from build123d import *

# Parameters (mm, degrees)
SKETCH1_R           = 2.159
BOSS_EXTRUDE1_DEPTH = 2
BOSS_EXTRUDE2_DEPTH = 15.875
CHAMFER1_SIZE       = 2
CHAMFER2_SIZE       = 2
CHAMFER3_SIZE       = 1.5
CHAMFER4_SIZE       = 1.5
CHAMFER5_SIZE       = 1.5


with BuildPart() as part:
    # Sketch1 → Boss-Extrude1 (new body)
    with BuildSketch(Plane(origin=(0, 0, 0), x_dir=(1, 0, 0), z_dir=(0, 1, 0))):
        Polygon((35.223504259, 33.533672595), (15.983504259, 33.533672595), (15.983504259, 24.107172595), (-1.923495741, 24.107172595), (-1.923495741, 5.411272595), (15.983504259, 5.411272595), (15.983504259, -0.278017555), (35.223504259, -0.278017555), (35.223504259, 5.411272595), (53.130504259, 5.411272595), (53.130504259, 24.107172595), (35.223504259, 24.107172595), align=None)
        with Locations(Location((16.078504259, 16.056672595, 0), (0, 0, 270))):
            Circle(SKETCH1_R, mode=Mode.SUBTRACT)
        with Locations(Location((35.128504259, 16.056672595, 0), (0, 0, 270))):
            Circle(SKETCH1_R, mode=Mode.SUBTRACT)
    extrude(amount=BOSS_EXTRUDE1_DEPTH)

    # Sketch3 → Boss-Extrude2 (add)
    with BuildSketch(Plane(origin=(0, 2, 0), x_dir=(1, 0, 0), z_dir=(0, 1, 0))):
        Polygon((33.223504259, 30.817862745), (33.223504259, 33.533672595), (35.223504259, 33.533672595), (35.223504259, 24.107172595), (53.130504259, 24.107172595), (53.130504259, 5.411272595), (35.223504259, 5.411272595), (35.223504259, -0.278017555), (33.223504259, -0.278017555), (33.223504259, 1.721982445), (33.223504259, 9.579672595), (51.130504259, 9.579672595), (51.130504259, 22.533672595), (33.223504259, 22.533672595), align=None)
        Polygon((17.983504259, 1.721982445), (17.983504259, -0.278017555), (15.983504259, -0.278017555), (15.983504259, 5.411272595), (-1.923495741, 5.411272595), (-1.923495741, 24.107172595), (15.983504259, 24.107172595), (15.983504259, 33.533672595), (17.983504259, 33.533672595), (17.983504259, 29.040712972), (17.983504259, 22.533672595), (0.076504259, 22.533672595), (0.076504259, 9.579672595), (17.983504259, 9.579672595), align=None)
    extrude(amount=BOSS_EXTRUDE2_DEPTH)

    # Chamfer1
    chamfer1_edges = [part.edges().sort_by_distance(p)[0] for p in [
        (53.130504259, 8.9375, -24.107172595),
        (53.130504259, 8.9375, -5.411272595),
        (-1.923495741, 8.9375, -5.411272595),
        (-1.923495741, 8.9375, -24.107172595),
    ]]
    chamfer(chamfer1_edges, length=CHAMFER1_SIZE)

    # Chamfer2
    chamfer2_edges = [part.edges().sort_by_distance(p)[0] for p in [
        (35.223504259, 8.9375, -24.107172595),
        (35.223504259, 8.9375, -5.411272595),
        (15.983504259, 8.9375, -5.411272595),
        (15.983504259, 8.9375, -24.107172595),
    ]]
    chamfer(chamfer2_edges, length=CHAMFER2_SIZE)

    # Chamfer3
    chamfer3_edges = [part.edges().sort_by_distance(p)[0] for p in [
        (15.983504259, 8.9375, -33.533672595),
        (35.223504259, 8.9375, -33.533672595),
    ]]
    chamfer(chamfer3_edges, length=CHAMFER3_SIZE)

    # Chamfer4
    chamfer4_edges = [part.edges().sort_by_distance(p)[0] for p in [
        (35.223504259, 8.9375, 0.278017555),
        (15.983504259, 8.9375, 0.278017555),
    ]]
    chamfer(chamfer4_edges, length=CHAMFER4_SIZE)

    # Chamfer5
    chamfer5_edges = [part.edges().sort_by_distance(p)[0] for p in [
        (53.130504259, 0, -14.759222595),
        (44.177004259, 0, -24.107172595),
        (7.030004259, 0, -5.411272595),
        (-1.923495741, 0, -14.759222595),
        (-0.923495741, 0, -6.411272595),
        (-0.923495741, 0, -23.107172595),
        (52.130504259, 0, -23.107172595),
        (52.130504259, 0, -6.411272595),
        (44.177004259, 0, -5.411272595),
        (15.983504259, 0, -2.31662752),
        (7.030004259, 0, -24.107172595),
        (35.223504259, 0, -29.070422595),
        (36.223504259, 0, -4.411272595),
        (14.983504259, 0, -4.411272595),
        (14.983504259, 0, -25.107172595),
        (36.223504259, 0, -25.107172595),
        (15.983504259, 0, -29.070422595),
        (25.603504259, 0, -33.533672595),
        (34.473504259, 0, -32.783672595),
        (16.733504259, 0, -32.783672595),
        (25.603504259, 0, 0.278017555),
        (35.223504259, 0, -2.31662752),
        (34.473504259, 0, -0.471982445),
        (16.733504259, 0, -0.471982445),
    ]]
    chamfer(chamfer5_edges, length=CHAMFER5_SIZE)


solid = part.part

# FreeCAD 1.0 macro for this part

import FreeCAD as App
import Part
import Sketcher
from FreeCAD import Vector
Q = App.Units.Quantity


def edges_at(feature, points):
    """Names of the edges that pass closest to the given points."""
    edges = feature.Shape.Edges
    near = lambda p: min(range(len(edges)), key=lambda i: edges[i].distToShape(Part.Vertex(*p))[0])
    return sorted({f"Edge{near(p) + 1}" for p in points})

doc = App.newDocument("Part")
body = doc.addObject("PartDesign::Body", "Body")

# Sketch on XZ plane
sketch1 = body.newObject("Sketcher::SketchObject", "Sketch")
sketch1.AttachmentSupport = (doc.getObject("XZ_Plane"), [""])
sketch1.MapMode = "FlatFace"
sketch1.addGeometry([
    Part.LineSegment(Vector(35.223504, -33.533673, 0), Vector(15.983504, -33.533673, 0)),  # 0
    Part.LineSegment(Vector(15.983504, -33.533673, 0), Vector(15.983504, -24.107173, 0)),  # 1
    Part.LineSegment(Vector(15.983504, -24.107173, 0), Vector(-1.923496, -24.107173, 0)),  # 2
    Part.LineSegment(Vector(-1.923496, -24.107173, 0), Vector(-1.923496, -5.411273, 0)),  # 3
    Part.LineSegment(Vector(-1.923496, -5.411273, 0), Vector(15.983504, -5.411273, 0)),  # 4
    Part.LineSegment(Vector(15.983504, -5.411273, 0), Vector(15.983504, 0.278018, 0)),  # 5
    Part.LineSegment(Vector(15.983504, 0.278018, 0), Vector(35.223504, 0.278018, 0)),  # 6
    Part.LineSegment(Vector(35.223504, 0.278018, 0), Vector(35.223504, -5.411273, 0)),  # 7
    Part.LineSegment(Vector(35.223504, -5.411273, 0), Vector(53.130504, -5.411273, 0)),  # 8
    Part.LineSegment(Vector(53.130504, -5.411273, 0), Vector(53.130504, -24.107173, 0)),  # 9
    Part.LineSegment(Vector(53.130504, -24.107173, 0), Vector(35.223504, -24.107173, 0)),  # 10
    Part.LineSegment(Vector(35.223504, -24.107173, 0), Vector(35.223504, -33.533673, 0)),  # 11
    Part.Circle(Vector(16.078504, -16.056673, 0), Vector(0, 0, 1), 2.159),  # 12
    Part.Circle(Vector(35.128504, -16.056673, 0), Vector(0, 0, 1), 2.159),  # 13
], False)
sketch1.addConstraint([
    Sketcher.Constraint("Coincident", 0, 2, 1, 1),
    Sketcher.Constraint("Coincident", 1, 2, 2, 1),
    Sketcher.Constraint("Coincident", 2, 2, 3, 1),
    Sketcher.Constraint("Coincident", 3, 2, 4, 1),
    Sketcher.Constraint("Coincident", 4, 2, 5, 1),
    Sketcher.Constraint("Coincident", 5, 2, 6, 1),
    Sketcher.Constraint("Coincident", 6, 2, 7, 1),
    Sketcher.Constraint("Coincident", 7, 2, 8, 1),
    Sketcher.Constraint("Coincident", 8, 2, 9, 1),
    Sketcher.Constraint("Coincident", 9, 2, 10, 1),
    Sketcher.Constraint("Coincident", 10, 2, 11, 1),
    Sketcher.Constraint("Coincident", 11, 2, 0, 1),
    Sketcher.Constraint("Horizontal", 0),
    Sketcher.Constraint("Vertical", 1),
    Sketcher.Constraint("Horizontal", 2),
    Sketcher.Constraint("Vertical", 3),
    Sketcher.Constraint("Horizontal", 4),
    Sketcher.Constraint("Vertical", 5),
    Sketcher.Constraint("Horizontal", 6),
    Sketcher.Constraint("Vertical", 7),
    Sketcher.Constraint("Horizontal", 8),
    Sketcher.Constraint("Vertical", 9),
    Sketcher.Constraint("Horizontal", 10),
    Sketcher.Constraint("Vertical", 11),
    Sketcher.Constraint("Equal", 12, 13),
    Sketcher.Constraint("Horizontal", 12, 3, 13, 3),
    Sketcher.Constraint("Horizontal", 4, 2, 7, 2),
    Sketcher.Constraint("Horizontal", 2, 2, 9, 2),
    Sketcher.Constraint("Vertical", 1, 2, 4, 2),
    Sketcher.Constraint("Vertical", 7, 2, 10, 2),
    Sketcher.Constraint("Equal", 4, 8),
    Sketcher.Constraint("Diameter", 12, Q("0.17 in")),
    Sketcher.Constraint("DistanceX", 2, 2, 2, 1, Q("0.705 in")),
    Sketcher.Constraint("DistanceX", 12, 3, 13, 3, Q("0.75 in")),
    Sketcher.Constraint("DistanceX", 0, 2, 0, 1, 19.24),
    Sketcher.Constraint("DistanceY", 1, 1, 1, 2, 9.4265),
    Sketcher.Constraint("DistanceY", 3, 1, 3, 2, 18.6959),
    Sketcher.Constraint("DistanceY", 5, 1, 5, 2, 5.68929),
    Sketcher.Constraint("DistanceX", 0, 2, 12, 3, 0.095),
    Sketcher.Constraint("DistanceY", 0, 2, 12, 3, 17.477),
    Sketcher.Constraint("DistanceX", -1, 1, 12, 3, 16.078504),
    Sketcher.Constraint("DistanceY", 12, 3, -1, 1, 16.056673),
])
pad1 = body.newObject("PartDesign::Pad", "Pad")
pad1.Profile = sketch1
pad1.Length = 2
pad1.Reversed = True

# Sketch on XZ plane
sketch2 = body.newObject("Sketcher::SketchObject", "Sketch001")
sketch2.AttachmentSupport = (doc.getObject("XZ_Plane"), [""])
sketch2.MapMode = "FlatFace"
sketch2.AttachmentOffset = App.Placement(Vector(0, 0, -2), App.Rotation())
sketch2.addGeometry([
    Part.LineSegment(Vector(33.223504, -33.533673, 0), Vector(33.223504, -22.533673, 0)),  # 0
    Part.LineSegment(Vector(33.223504, -22.533673, 0), Vector(51.130504, -22.533673, 0)),  # 1
    Part.LineSegment(Vector(51.130504, -22.533673, 0), Vector(51.130504, -9.579673, 0)),  # 2
    Part.LineSegment(Vector(51.130504, -9.579673, 0), Vector(33.223504, -9.579673, 0)),  # 3
    Part.LineSegment(Vector(33.223504, -9.579673, 0), Vector(33.223504, 0.278018, 0)),  # 4
    Part.LineSegment(Vector(33.223504, 0.278018, 0), Vector(35.223504, 0.278018, 0)),  # 5
    Part.LineSegment(Vector(35.223504, 0.278018, 0), Vector(35.223504, -5.411273, 0)),  # 6
    Part.LineSegment(Vector(35.223504, -5.411273, 0), Vector(53.130504, -5.411273, 0)),  # 7
    Part.LineSegment(Vector(53.130504, -5.411273, 0), Vector(53.130504, -24.107173, 0)),  # 8
    Part.LineSegment(Vector(53.130504, -24.107173, 0), Vector(35.223504, -24.107173, 0)),  # 9
    Part.LineSegment(Vector(35.223504, -24.107173, 0), Vector(35.223504, -33.533673, 0)),  # 10
    Part.LineSegment(Vector(35.223504, -33.533673, 0), Vector(33.223504, -33.533673, 0)),  # 11
    Part.LineSegment(Vector(17.983504, 0.278018, 0), Vector(17.983504, -9.579673, 0)),  # 12
    Part.LineSegment(Vector(17.983504, -9.579673, 0), Vector(0.076504, -9.579673, 0)),  # 13
    Part.LineSegment(Vector(0.076504, -9.579673, 0), Vector(0.076504, -22.533673, 0)),  # 14
    Part.LineSegment(Vector(0.076504, -22.533673, 0), Vector(17.983504, -22.533673, 0)),  # 15
    Part.LineSegment(Vector(17.983504, -22.533673, 0), Vector(17.983504, -33.533673, 0)),  # 16
    Part.LineSegment(Vector(17.983504, -33.533673, 0), Vector(15.983504, -33.533673, 0)),  # 17
    Part.LineSegment(Vector(15.983504, -33.533673, 0), Vector(15.983504, -24.107173, 0)),  # 18
    Part.LineSegment(Vector(15.983504, -24.107173, 0), Vector(-1.923496, -24.107173, 0)),  # 19
    Part.LineSegment(Vector(-1.923496, -24.107173, 0), Vector(-1.923496, -5.411273, 0)),  # 20
    Part.LineSegment(Vector(-1.923496, -5.411273, 0), Vector(15.983504, -5.411273, 0)),  # 21
    Part.LineSegment(Vector(15.983504, -5.411273, 0), Vector(15.983504, 0.278018, 0)),  # 22
    Part.LineSegment(Vector(15.983504, 0.278018, 0), Vector(17.983504, 0.278018, 0)),  # 23
], False)
sketch2.addConstraint([
    Sketcher.Constraint("Coincident", 0, 2, 1, 1),
    Sketcher.Constraint("Coincident", 1, 2, 2, 1),
    Sketcher.Constraint("Coincident", 2, 2, 3, 1),
    Sketcher.Constraint("Coincident", 3, 2, 4, 1),
    Sketcher.Constraint("Coincident", 4, 2, 5, 1),
    Sketcher.Constraint("Coincident", 5, 2, 6, 1),
    Sketcher.Constraint("Coincident", 6, 2, 7, 1),
    Sketcher.Constraint("Coincident", 7, 2, 8, 1),
    Sketcher.Constraint("Coincident", 8, 2, 9, 1),
    Sketcher.Constraint("Coincident", 9, 2, 10, 1),
    Sketcher.Constraint("Coincident", 10, 2, 11, 1),
    Sketcher.Constraint("Coincident", 11, 2, 0, 1),
    Sketcher.Constraint("Coincident", 12, 2, 13, 1),
    Sketcher.Constraint("Coincident", 13, 2, 14, 1),
    Sketcher.Constraint("Coincident", 14, 2, 15, 1),
    Sketcher.Constraint("Coincident", 15, 2, 16, 1),
    Sketcher.Constraint("Coincident", 16, 2, 17, 1),
    Sketcher.Constraint("Coincident", 17, 2, 18, 1),
    Sketcher.Constraint("Coincident", 18, 2, 19, 1),
    Sketcher.Constraint("Coincident", 19, 2, 20, 1),
    Sketcher.Constraint("Coincident", 20, 2, 21, 1),
    Sketcher.Constraint("Coincident", 21, 2, 22, 1),
    Sketcher.Constraint("Coincident", 22, 2, 23, 1),
    Sketcher.Constraint("Coincident", 23, 2, 12, 1),
    Sketcher.Constraint("Vertical", 0),
    Sketcher.Constraint("Horizontal", 1),
    Sketcher.Constraint("Vertical", 2),
    Sketcher.Constraint("Horizontal", 3),
    Sketcher.Constraint("Vertical", 4),
    Sketcher.Constraint("Horizontal", 5),
    Sketcher.Constraint("Vertical", 6),
    Sketcher.Constraint("Horizontal", 7),
    Sketcher.Constraint("Vertical", 8),
    Sketcher.Constraint("Horizontal", 9),
    Sketcher.Constraint("Vertical", 10),
    Sketcher.Constraint("Horizontal", 11),
    Sketcher.Constraint("Vertical", 12),
    Sketcher.Constraint("Horizontal", 13),
    Sketcher.Constraint("Vertical", 14),
    Sketcher.Constraint("Horizontal", 15),
    Sketcher.Constraint("Vertical", 16),
    Sketcher.Constraint("Horizontal", 17),
    Sketcher.Constraint("Vertical", 18),
    Sketcher.Constraint("Horizontal", 19),
    Sketcher.Constraint("Vertical", 20),
    Sketcher.Constraint("Horizontal", 21),
    Sketcher.Constraint("Vertical", 22),
    Sketcher.Constraint("Horizontal", 23),
    Sketcher.Constraint("Horizontal", 3, 2, 12, 2),
    Sketcher.Constraint("Horizontal", 1, 2, 14, 2),
    Sketcher.Constraint("Horizontal", 11, 2, 16, 2),
    Sketcher.Constraint("Horizontal", 9, 2, 18, 2),
    Sketcher.Constraint("Horizontal", 7, 2, 20, 2),
    Sketcher.Constraint("Horizontal", 5, 2, 22, 2),
    Sketcher.Constraint("Vertical", 0, 2, 3, 2),
    Sketcher.Constraint("Vertical", 6, 2, 9, 2),
    Sketcher.Constraint("Vertical", 12, 2, 15, 2),
    Sketcher.Constraint("Vertical", 18, 2, 21, 2),
    Sketcher.Constraint("Equal", 3, 7),
    Sketcher.Constraint("Equal", 9, 13),
    Sketcher.Constraint("Equal", 11, 17),
    Sketcher.Constraint("Equal", 15, 19),
    Sketcher.Constraint("DistanceY", 2, 1, 2, 2, Q("0.51 in")),
    Sketcher.Constraint("DistanceX", 12, 2, 3, 2, Q("0.6 in")),
    Sketcher.Constraint("DistanceX", 1, 1, 1, 2, Q("0.705 in")),
    Sketcher.Constraint("DistanceX", 5, 1, 5, 2, 2.0),
    Sketcher.Constraint("DistanceY", 0, 1, 0, 2, 11.0),
    Sketcher.Constraint("DistanceY", 8, 2, 8, 1, 18.6959),
    Sketcher.Constraint("DistanceY", 10, 2, 10, 1, 9.4265),
    Sketcher.Constraint("DistanceY", 4, 1, 4, 2, 9.85769),
    Sketcher.Constraint("DistanceX", -1, 1, 0, 2, 33.223504),
    Sketcher.Constraint("DistanceY", 0, 2, -1, 1, 22.533673),
])
pad2 = body.newObject("PartDesign::Pad", "Pad001")
pad2.Profile = sketch2
pad2.Length = Q("0.625 in")
pad2.Reversed = True
doc.recompute()

chamfer = body.newObject("PartDesign::Chamfer", "Chamfer")
chamfer.Base = (pad2, edges_at(pad2, [
    (53.131, 8.938, -24.107),
    (53.131, 8.938, -5.411),
    (-1.923, 8.938, -5.411),
    (-1.923, 8.938, -24.107),
]))
chamfer.Size = 2
doc.recompute()

chamfer2 = body.newObject("PartDesign::Chamfer", "Chamfer001")
chamfer2.Base = (chamfer, edges_at(chamfer, [
    (35.224, 8.938, -24.107),
    (35.224, 8.938, -5.411),
    (15.984, 8.938, -5.411),
    (15.984, 8.938, -24.107),
]))
chamfer2.Size = 2
doc.recompute()

chamfer3 = body.newObject("PartDesign::Chamfer", "Chamfer002")
chamfer3.Base = (chamfer2, edges_at(chamfer2, [(15.984, 8.938, -33.534), (35.224, 8.938, -33.534)]))
chamfer3.Size = 1.5
doc.recompute()

chamfer4 = body.newObject("PartDesign::Chamfer", "Chamfer003")
chamfer4.Base = (chamfer3, edges_at(chamfer3, [(35.224, 8.938, 0.278), (15.984, 8.938, 0.278)]))
chamfer4.Size = 1.5
doc.recompute()

chamfer5 = body.newObject("PartDesign::Chamfer", "Chamfer004")
chamfer5.Base = (chamfer4, edges_at(chamfer4, [
    (53.131, 0, -14.759),
    (44.177, 0, -24.107),
    (7.03, 0, -5.411),
    (-1.923, 0, -14.759),
    (-0.923, 0, -6.411),
    (-0.923, 0, -23.107),
    (52.131, 0, -23.107),
    (52.131, 0, -6.411),
    (44.177, 0, -5.411),
    (15.984, 0, -2.317),
    (7.03, 0, -24.107),
    (35.224, 0, -29.07),
    (36.224, 0, -4.411),
    (14.984, 0, -4.411),
    (14.984, 0, -25.107),
    (36.224, 0, -25.107),
    (15.984, 0, -29.07),
    (25.604, 0, -33.534),
    (34.474, 0, -32.784),
    (16.734, 0, -32.784),
    (25.604, 0, 0.278),
    (35.224, 0, -2.317),
    (34.474, 0, -0.472),
    (16.734, 0, -0.472),
]))
chamfer5.Size = 1.5

doc.recompute()
